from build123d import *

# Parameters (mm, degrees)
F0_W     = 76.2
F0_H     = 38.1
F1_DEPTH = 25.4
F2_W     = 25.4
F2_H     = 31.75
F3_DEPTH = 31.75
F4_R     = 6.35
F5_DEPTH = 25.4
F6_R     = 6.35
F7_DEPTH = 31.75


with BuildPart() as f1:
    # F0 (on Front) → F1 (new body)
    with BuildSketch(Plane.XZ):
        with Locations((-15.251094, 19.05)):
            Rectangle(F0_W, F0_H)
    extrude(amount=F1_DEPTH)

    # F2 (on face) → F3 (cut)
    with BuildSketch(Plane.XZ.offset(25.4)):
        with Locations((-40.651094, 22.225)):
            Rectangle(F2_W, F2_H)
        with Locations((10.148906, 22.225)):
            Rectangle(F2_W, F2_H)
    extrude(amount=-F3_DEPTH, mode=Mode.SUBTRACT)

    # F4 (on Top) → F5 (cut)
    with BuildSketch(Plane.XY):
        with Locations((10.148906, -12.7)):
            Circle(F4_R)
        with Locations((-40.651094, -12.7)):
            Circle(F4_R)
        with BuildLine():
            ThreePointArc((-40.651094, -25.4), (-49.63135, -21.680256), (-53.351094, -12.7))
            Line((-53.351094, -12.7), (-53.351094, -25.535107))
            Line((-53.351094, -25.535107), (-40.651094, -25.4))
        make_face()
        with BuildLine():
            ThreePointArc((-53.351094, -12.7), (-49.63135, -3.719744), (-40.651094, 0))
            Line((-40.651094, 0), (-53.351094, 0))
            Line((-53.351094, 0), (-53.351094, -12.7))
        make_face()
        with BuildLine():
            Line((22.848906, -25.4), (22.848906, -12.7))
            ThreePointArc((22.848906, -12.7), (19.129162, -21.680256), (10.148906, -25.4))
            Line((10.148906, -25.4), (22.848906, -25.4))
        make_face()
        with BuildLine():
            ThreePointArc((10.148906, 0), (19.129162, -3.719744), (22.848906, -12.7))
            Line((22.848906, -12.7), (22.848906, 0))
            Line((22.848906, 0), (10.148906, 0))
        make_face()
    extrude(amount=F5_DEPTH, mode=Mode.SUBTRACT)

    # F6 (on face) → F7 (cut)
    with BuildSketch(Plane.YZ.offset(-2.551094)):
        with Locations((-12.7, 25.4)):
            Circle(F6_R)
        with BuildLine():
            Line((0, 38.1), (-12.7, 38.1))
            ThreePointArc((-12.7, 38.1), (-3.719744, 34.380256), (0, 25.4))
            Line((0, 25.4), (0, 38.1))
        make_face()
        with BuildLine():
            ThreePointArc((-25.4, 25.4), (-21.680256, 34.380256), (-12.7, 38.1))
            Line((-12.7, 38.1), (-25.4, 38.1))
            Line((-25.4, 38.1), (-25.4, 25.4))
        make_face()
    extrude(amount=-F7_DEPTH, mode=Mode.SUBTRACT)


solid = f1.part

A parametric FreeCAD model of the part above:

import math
import FreeCAD as App
import Part
import Sketcher
Q = App.Units.Quantity

doc = App.newDocument("Part")
body = doc.addObject("PartDesign::Body", "Body")

# Sketch on XZ plane
sketch1 = body.newObject("Sketcher::SketchObject", "Sketch")
sketch1.AttachmentSupport = (doc.getObject("XZ_Plane"), [""])
sketch1.MapMode = "FlatFace"
sketch1.addGeometry(Part.LineSegment(App.Vector(-53, 38, 0), App.Vector(-53, 0, 0)), False)
sketch1.addGeometry(Part.LineSegment(App.Vector(-53, 0, 0), App.Vector(23, 0, 0)), False)
sketch1.addGeometry(Part.LineSegment(App.Vector(23, 0, 0), App.Vector(23, 38, 0)), False)
sketch1.addGeometry(Part.LineSegment(App.Vector(23, 38, 0), App.Vector(-53, 38, 0)), False)
sketch1.addConstraint(Sketcher.Constraint("Coincident", 0, 2, 1, 1))
sketch1.addConstraint(Sketcher.Constraint("Coincident", 1, 2, 2, 1))
sketch1.addConstraint(Sketcher.Constraint("Coincident", 2, 2, 3, 1))
sketch1.addConstraint(Sketcher.Constraint("Coincident", 3, 2, 0, 1))
sketch1.addConstraint(Sketcher.Constraint("Vertical", 0))
sketch1.addConstraint(Sketcher.Constraint("Horizontal", 1))
sketch1.addConstraint(Sketcher.Constraint("Vertical", 2))
sketch1.addConstraint(Sketcher.Constraint("Horizontal", 3))
sketch1.addConstraint(Sketcher.Constraint("PointOnObject", 0, 2, -1))
sketch1.addConstraint(Sketcher.Constraint("DistanceX", 1, 1, 1, 2, Q("3 in")))
sketch1.addConstraint(Sketcher.Constraint("DistanceY", 0, 2, 0, 1, Q("1.5 in")))
sketch1.addConstraint(Sketcher.Constraint("DistanceX", 0, 2, -1, 1, Q("53.351094 mm")))
pad1 = body.newObject("PartDesign::Pad", "Pad")
pad1.Profile = sketch1
pad1.Length = Q("1 in")

# Sketch on XZ plane
sketch2 = body.newObject("Sketcher::SketchObject", "Sketch001")
sketch2.AttachmentSupport = (doc.getObject("XZ_Plane"), [""])
sketch2.MapMode = "FlatFace"
sketch2.AttachmentOffset = App.Placement(App.Vector(0, 0, 1 * 25.4), App.Rotation())
sketch2.addGeometry(Part.LineSegment(App.Vector(-53, 38, 0), App.Vector(-53, 6, 0)), False)
sketch2.addGeometry(Part.LineSegment(App.Vector(-53, 6, 0), App.Vector(-28, 6, 0)), False)
sketch2.addGeometry(Part.LineSegment(App.Vector(-28, 6, 0), App.Vector(-28, 38, 0)), False)
sketch2.addGeometry(Part.LineSegment(App.Vector(-28, 38, 0), App.Vector(-53, 38, 0)), False)
sketch2.addGeometry(Part.LineSegment(App.Vector(-3, 38, 0), App.Vector(-3, 6, 0)), False)
sketch2.addGeometry(Part.LineSegment(App.Vector(-3, 6, 0), App.Vector(23, 6, 0)), False)
sketch2.addGeometry(Part.LineSegment(App.Vector(23, 6, 0), App.Vector(23, 38, 0)), False)
sketch2.addGeometry(Part.LineSegment(App.Vector(23, 38, 0), App.Vector(-3, 38, 0)), False)
sketch2.addConstraint(Sketcher.Constraint("Coincident", 0, 2, 1, 1))
sketch2.addConstraint(Sketcher.Constraint("Coincident", 1, 2, 2, 1))
sketch2.addConstraint(Sketcher.Constraint("Coincident", 2, 2, 3, 1))
sketch2.addConstraint(Sketcher.Constraint("Coincident", 3, 2, 0, 1))
sketch2.addConstraint(Sketcher.Constraint("Coincident", 4, 2, 5, 1))
sketch2.addConstraint(Sketcher.Constraint("Coincident", 5, 2, 6, 1))
sketch2.addConstraint(Sketcher.Constraint("Coincident", 6, 2, 7, 1))
sketch2.addConstraint(Sketcher.Constraint("Coincident", 7, 2, 4, 1))
sketch2.addConstraint(Sketcher.Constraint("Vertical", 0))
sketch2.addConstraint(Sketcher.Constraint("Horizontal", 1))
sketch2.addConstraint(Sketcher.Constraint("Vertical", 2))
sketch2.addConstraint(Sketcher.Constraint("Horizontal", 3))
sketch2.addConstraint(Sketcher.Constraint("Vertical", 4))
sketch2.addConstraint(Sketcher.Constraint("Horizontal", 5))
sketch2.addConstraint(Sketcher.Constraint("Vertical", 6))
sketch2.addConstraint(Sketcher.Constraint("Horizontal", 7))
sketch2.addConstraint(Sketcher.Constraint("Horizontal", 1, 2, 4, 2))
sketch2.addConstraint(Sketcher.Constraint("Horizontal", 3, 2, 6, 2))
sketch2.addConstraint(Sketcher.Constraint("Equal", 3, 5))
sketch2.addConstraint(Sketcher.Constraint("DistanceX", 1, 1, 1, 2, Q("1 in")))
sketch2.addConstraint(Sketcher.Constraint("DistanceX", 1, 2, 4, 2, Q("1 in")))
sketch2.addConstraint(Sketcher.Constraint("DistanceY", 0, 2, 0, 1, Q("1.25 in")))
sketch2.addConstraint(Sketcher.Constraint("DistanceY", -1, 1, 2, 2, Q("1.5 in")))
sketch2.addConstraint(Sketcher.Constraint("DistanceX", 0, 2, -1, 1, Q("53.351094 mm")))
pocket1 = body.newObject("PartDesign::Pocket", "Pocket")
pocket1.Profile = sketch2
pocket1.Length = Q("1.25 in")

# Sketch on XY plane
sketch3 = body.newObject("Sketcher::SketchObject", "Sketch002")
sketch3.AttachmentSupport = (doc.getObject("XY_Plane"), [""])
sketch3.MapMode = "FlatFace"
sketch3.addGeometry(Part.Circle(App.Vector(10.148906, -12.7, 0), App.Vector(0, 0, 1), 6.35), False)
sketch3.addGeometry(Part.Circle(App.Vector(-40.651094, -12.7, 0), App.Vector(0, 0, 1), 6.35), False)
sketch3.addGeometry(Part.ArcOfCircle(Part.Circle(App.Vector(-40.651094, -12.7, 0), App.Vector(0, 0, 1), 12.7), math.radians(-179.999998), math.radians(-90.000002)), False)
sketch3.addGeometry(Part.LineSegment(App.Vector(-53.351094, -12.7, 0), App.Vector(-53.351094, -25.535107, 0)), False)
sketch3.addGeometry(Part.LineSegment(App.Vector(-53.351094, -25.535107, 0), App.Vector(-40.651094, -25.4, 0)), False)
sketch3.addGeometry(Part.ArcOfCircle(Part.Circle(App.Vector(-40.651094, -12.7, 0), App.Vector(0, 0, 1), 12.7), math.radians(90.000002), math.radians(179.999998)), False)
sketch3.addGeometry(Part.LineSegment(App.Vector(-40.651094, 0, 0), App.Vector(-53.351094, 0, 0)), False)
sketch3.addGeometry(Part.LineSegment(App.Vector(-53.351094, 0, 0), App.Vector(-53.351094, -12.7, 0)), False)
sketch3.addGeometry(Part.LineSegment(App.Vector(22.848906, -25.4, 0), App.Vector(22.848906, -12.7, 0)), False)
sketch3.addGeometry(Part.ArcOfCircle(Part.Circle(App.Vector(10.148906, -12.7, 0), App.Vector(0, 0, 1), 12.7), math.radians(-89.999998), math.radians(-0.000002)), False)
sketch3.addGeometry(Part.LineSegment(App.Vector(10.148906, -25.4, 0), App.Vector(22.848906, -25.4, 0)), False)
sketch3.addGeometry(Part.ArcOfCircle(Part.Circle(App.Vector(10.148906, -12.7, 0), App.Vector(0, 0, 1), 12.7), math.radians(0.000002), math.radians(89.999998)), False)
sketch3.addGeometry(Part.LineSegment(App.Vector(22.848906, -12.7, 0), App.Vector(22.848906, 0, 0)), False)
sketch3.addGeometry(Part.LineSegment(App.Vector(22.848906, 0, 0), App.Vector(10.148906, 0, 0)), False)
sketch3.addConstraint(Sketcher.Constraint("Coincident", 2, 1, 3, 1))
sketch3.addConstraint(Sketcher.Constraint("Coincident", 3, 2, 4, 1))
sketch3.addConstraint(Sketcher.Constraint("Coincident", 4, 2, 2, 2))
sketch3.addConstraint(Sketcher.Constraint("Coincident", 5, 1, 6, 1))
sketch3.addConstraint(Sketcher.Constraint("Coincident", 6, 2, 7, 1))
sketch3.addConstraint(Sketcher.Constraint("Coincident", 7, 2, 5, 2))
sketch3.addConstraint(Sketcher.Constraint("Coincident", 8, 2, 9, 2))
sketch3.addConstraint(Sketcher.Constraint("Coincident", 9, 1, 10, 1))
sketch3.addConstraint(Sketcher.Constraint("Coincident", 10, 2, 8, 1))
sketch3.addConstraint(Sketcher.Constraint("Coincident", 11, 1, 12, 1))
sketch3.addConstraint(Sketcher.Constraint("Coincident", 12, 2, 13, 1))
sketch3.addConstraint(Sketcher.Constraint("Coincident", 13, 2, 11, 2))
sketch3.addConstraint(Sketcher.Constraint("Vertical", 3))
sketch3.addConstraint(Sketcher.Constraint("Horizontal", 6))
sketch3.addConstraint(Sketcher.Constraint("Vertical", 7))
sketch3.addConstraint(Sketcher.Constraint("Vertical", 8))
sketch3.addConstraint(Sketcher.Constraint("Horizontal", 10))
sketch3.addConstraint(Sketcher.Constraint("Vertical", 12))
sketch3.addConstraint(Sketcher.Constraint("Horizontal", 13))
sketch3.addConstraint(Sketcher.Constraint("Coincident", 2, 3, 1, 3))
sketch3.addConstraint(Sketcher.Constraint("Coincident", 5, 3, 1, 3))
sketch3.addConstraint(Sketcher.Constraint("Coincident", 9, 3, 0, 3))
sketch3.addConstraint(Sketcher.Constraint("Coincident", 11, 3, 0, 3))
sketch3.addConstraint(Sketcher.Constraint("Coincident", 7, 2, 2, 1))
sketch3.addConstraint(Sketcher.Constraint("Coincident", 11, 1, 8, 2))
sketch3.addConstraint(Sketcher.Constraint("PointOnObject", 5, 1, -1))
sketch3.addConstraint(Sketcher.Constraint("PointOnObject", 12, 2, -1))
sketch3.addConstraint(Sketcher.Constraint("Diameter", 0, Q("0.5 in")))
sketch3.addConstraint(Sketcher.Constraint("Diameter", 1, Q("0.5 in")))
sketch3.addConstraint(Sketcher.Constraint("Radius", 2, Q("0.5 in")))
sketch3.addConstraint(Sketcher.Constraint("Radius", 9, Q("0.5 in")))
sketch3.addConstraint(Sketcher.Constraint("DistanceX", 6, 2, 6, 1, Q("0.5 in")))
sketch3.addConstraint(Sketcher.Constraint("DistanceX", 10, 1, 10, 2, Q("0.5 in")))
sketch3.addConstraint(Sketcher.Constraint("DistanceX", 13, 2, 13, 1, Q("0.5 in")))
sketch3.addConstraint(Sketcher.Constraint("DistanceY", 7, 2, 7, 1, Q("0.5 in")))
sketch3.addConstraint(Sketcher.Constraint("DistanceY", 8, 1, 8, 2, Q("0.5 in")))
sketch3.addConstraint(Sketcher.Constraint("DistanceX", 1, 3, 0, 3, Q("2 in")))
sketch3.addConstraint(Sketcher.Constraint("DistanceX", 4, 2, 9, 1, Q("2 in")))
sketch3.addConstraint(Sketcher.Constraint("Distance", 4, Q("12.700719 mm")))
sketch3.addConstraint(Sketcher.Constraint("DistanceX", -1, 1, 0, 3, Q("10.148906 mm")))
pocket2 = body.newObject("PartDesign::Pocket", "Pocket001")
pocket2.Profile = sketch3
pocket2.Length = Q("1 in")
pocket2.Reversed = True

# Sketch on YZ plane
sketch4 = body.newObject("Sketcher::SketchObject", "Sketch003")
sketch4.AttachmentSupport = (doc.getObject("YZ_Plane"), [""])
sketch4.MapMode = "FlatFace"
sketch4.AttachmentOffset = App.Placement(App.Vector(0, 0, -2.551094), App.Rotation())
sketch4.addGeometry(Part.Circle(App.Vector(-13, 25, 0), App.Vector(0, 0, 1), 6), False)
sketch4.addGeometry(Part.LineSegment(App.Vector(0, 38, 0), App.Vector(-13, 38, 0)), False)
sketch4.addGeometry(Part.ArcOfCircle(Part.Circle(App.Vector(-13, 25, 0), App.Vector(0, 0, 1), 13), math.radians(0), math.radians(90)), False)
sketch4.addGeometry(Part.LineSegment(App.Vector(0, 25, 0), App.Vector(0, 38, 0)), False)
sketch4.addGeometry(Part.ArcOfCircle(Part.Circle(App.Vector(-13, 25, 0), App.Vector(0, 0, 1), 13), math.radians(90), math.radians(180)), False)
sketch4.addGeometry(Part.LineSegment(App.Vector(-13, 38, 0), App.Vector(-25, 38, 0)), False)
sketch4.addGeometry(Part.LineSegment(App.Vector(-25, 38, 0), App.Vector(-25, 25, 0)), False)
sketch4.addConstraint(Sketcher.Constraint("Tangent", 1, 2, 2, 2))
sketch4.addConstraint(Sketcher.Constraint("Tangent", 2, 1, 3, 1))
sketch4.addConstraint(Sketcher.Constraint("Coincident", 3, 2, 1, 1))
sketch4.addConstraint(Sketcher.Constraint("Tangent", 4, 1, 5, 1))
sketch4.addConstraint(Sketcher.Constraint("Coincident", 5, 2, 6, 1))
sketch4.addConstraint(Sketcher.Constraint("Tangent", 6, 2, 4, 2))
sketch4.addConstraint(Sketcher.Constraint("Horizontal", 1))
sketch4.addConstraint(Sketcher.Constraint("Vertical", 3))
sketch4.addConstraint(Sketcher.Constraint("Horizontal", 5))
sketch4.addConstraint(Sketcher.Constraint("Vertical", 6))
sketch4.addConstraint(Sketcher.Constraint("Coincident", 2, 3, 0, 3))
sketch4.addConstraint(Sketcher.Constraint("Coincident", 4, 3, 0, 3))
sketch4.addConstraint(Sketcher.Constraint("Equal", 2, 4))
sketch4.addConstraint(Sketcher.Constraint("PointOnObject", 2, 1, -2))
sketch4.addConstraint(Sketcher.Constraint("Diameter", 0, Q("0.5 in")))
sketch4.addConstraint(Sketcher.Constraint("Radius", 2, Q("0.5 in")))
sketch4.addConstraint(Sketcher.Constraint("DistanceY", -1, 1, 0, 3, Q("1 in")))
pocket3 = body.newObject("PartDesign::Pocket", "Pocket002")
pocket3.Profile = sketch4
pocket3.Length = Q("1.25 in")

doc.recompute()
